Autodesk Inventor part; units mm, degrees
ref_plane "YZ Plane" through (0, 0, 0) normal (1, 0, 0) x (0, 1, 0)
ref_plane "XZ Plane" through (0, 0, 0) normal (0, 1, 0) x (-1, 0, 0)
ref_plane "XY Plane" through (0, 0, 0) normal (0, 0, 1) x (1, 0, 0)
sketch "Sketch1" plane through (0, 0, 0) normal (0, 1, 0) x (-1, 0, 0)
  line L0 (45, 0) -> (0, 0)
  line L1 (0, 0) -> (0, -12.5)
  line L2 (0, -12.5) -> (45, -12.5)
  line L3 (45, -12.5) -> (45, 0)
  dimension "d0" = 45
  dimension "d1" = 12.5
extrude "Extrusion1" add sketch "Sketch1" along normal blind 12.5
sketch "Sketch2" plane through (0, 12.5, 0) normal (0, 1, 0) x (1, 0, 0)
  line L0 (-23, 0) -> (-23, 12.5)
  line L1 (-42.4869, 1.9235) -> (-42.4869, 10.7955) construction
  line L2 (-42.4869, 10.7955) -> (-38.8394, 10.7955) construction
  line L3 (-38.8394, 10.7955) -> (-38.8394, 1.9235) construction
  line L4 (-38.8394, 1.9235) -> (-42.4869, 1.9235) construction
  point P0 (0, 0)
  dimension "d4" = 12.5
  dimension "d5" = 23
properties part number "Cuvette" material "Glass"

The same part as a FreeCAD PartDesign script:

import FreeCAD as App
import Part
import Sketcher

V = App.Vector

doc = App.newDocument("Part")
body = doc.addObject("PartDesign::Body", "Body")

# Sketch on XZ plane
sketch1 = body.newObject("Sketcher::SketchObject", "Sketch")
sketch1.AttachmentSupport = (doc.getObject("XZ_Plane"), [""])
sketch1.MapMode = "FlatFace"
sketch1.addGeometry(Part.LineSegment(V(-45, -12, 0), V(-45, 0, 0)), False)
sketch1.addGeometry(Part.LineSegment(V(-45, 0, 0), V(0, 0, 0)), False)
sketch1.addGeometry(Part.LineSegment(V(0, 0, 0), V(0, -12, 0)), False)
sketch1.addGeometry(Part.LineSegment(V(0, -12, 0), V(-45, -12, 0)), False)
sketch1.addConstraint(Sketcher.Constraint("Coincident", 0, 2, 1, 1))
sketch1.addConstraint(Sketcher.Constraint("Coincident", 1, 2, 2, 1))
sketch1.addConstraint(Sketcher.Constraint("Coincident", 2, 2, 3, 1))
sketch1.addConstraint(Sketcher.Constraint("Coincident", 3, 2, 0, 1))
sketch1.addConstraint(Sketcher.Constraint("Vertical", 0))
sketch1.addConstraint(Sketcher.Constraint("Horizontal", 1))
sketch1.addConstraint(Sketcher.Constraint("Vertical", 2))
sketch1.addConstraint(Sketcher.Constraint("Horizontal", 3))
sketch1.addConstraint(Sketcher.Constraint("Coincident", 1, 2, -1, 1))
sketch1.addConstraint(Sketcher.Constraint("DistanceX", 1, 1, 1, 2, 45.0))
sketch1.addConstraint(Sketcher.Constraint("DistanceY", 0, 1, 0, 2, 12.5))
pad1 = body.newObject("PartDesign::Pad", "Pad")
pad1.Profile = sketch1
pad1.Length = 12.5
pad1.Reversed = True

doc.recompute()
